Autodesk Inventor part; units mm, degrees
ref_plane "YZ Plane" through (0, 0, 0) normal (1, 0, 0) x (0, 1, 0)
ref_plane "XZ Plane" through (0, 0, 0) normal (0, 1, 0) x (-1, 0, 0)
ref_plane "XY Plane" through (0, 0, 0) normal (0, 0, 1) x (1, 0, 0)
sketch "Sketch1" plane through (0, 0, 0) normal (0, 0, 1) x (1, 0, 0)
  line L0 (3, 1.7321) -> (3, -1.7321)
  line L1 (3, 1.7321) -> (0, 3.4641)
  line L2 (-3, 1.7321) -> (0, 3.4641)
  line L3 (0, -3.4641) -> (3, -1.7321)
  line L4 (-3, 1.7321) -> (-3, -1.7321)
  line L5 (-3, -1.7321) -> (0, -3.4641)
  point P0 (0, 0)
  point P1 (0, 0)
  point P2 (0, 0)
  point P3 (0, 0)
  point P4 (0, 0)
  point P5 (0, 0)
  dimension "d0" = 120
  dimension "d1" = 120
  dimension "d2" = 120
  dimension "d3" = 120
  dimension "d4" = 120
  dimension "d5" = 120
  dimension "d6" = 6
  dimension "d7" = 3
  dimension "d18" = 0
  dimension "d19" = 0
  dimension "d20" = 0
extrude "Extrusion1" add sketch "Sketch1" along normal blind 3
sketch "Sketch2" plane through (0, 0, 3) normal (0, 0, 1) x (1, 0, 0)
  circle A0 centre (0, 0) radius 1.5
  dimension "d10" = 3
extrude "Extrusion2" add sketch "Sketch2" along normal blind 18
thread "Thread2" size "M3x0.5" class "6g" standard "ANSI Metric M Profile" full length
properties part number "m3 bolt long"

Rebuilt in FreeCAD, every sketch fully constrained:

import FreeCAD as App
import Part
import Sketcher

V = App.Vector
Q = App.Units.Quantity

doc = App.newDocument("Part")
body = doc.addObject("PartDesign::Body", "Body")

sketch1 = body.newObject("Sketcher::SketchObject", "Sketch")
sketch1.AttachmentSupport = (doc.getObject("XY_Plane"), [""])
sketch1.MapMode = "FlatFace"
sketch1.addGeometry([
    Part.LineSegment(V(3, -1.7321, 0), V(3, 1.7321, 0)),
    Part.LineSegment(V(3, 1.7321, 0), V(0, 3.4641, 0)),
    Part.LineSegment(V(0, 3.4641, 0), V(-3, 1.7321, 0)),
    Part.LineSegment(V(-3, 1.7321, 0), V(-3, -1.7321, 0)),
    Part.LineSegment(V(-3, -1.7321, 0), V(0, -3.4641, 0)),
    Part.LineSegment(V(0, -3.4641, 0), V(3, -1.7321, 0)),
], False)
sketch1.addConstraint([
    Sketcher.Constraint("Coincident", 0, 2, 1, 1),
    Sketcher.Constraint("Coincident", 1, 2, 2, 1),
    Sketcher.Constraint("Coincident", 2, 2, 3, 1),
    Sketcher.Constraint("Coincident", 3, 2, 4, 1),
    Sketcher.Constraint("Coincident", 4, 2, 5, 1),
    Sketcher.Constraint("Coincident", 5, 2, 0, 1),
    Sketcher.Constraint("Vertical", 0),
    Sketcher.Constraint("Vertical", 3),
    Sketcher.Constraint("Symmetric", 0, 2, 3, 2, -1, 1),
    Sketcher.Constraint("Symmetric", 1, 2, 4, 2, -1, 1),
    Sketcher.Constraint("PointOnObject", 1, 2, -2),
    Sketcher.Constraint("Parallel", 2, 5),
    Sketcher.Constraint("Horizontal", 0, 2, 2, 2),
    Sketcher.Constraint("DistanceX", -1, 1, 0, 2, Q("3 mm")),
    Sketcher.Constraint("Angle", 1, Q("150.0007 deg")),
    Sketcher.Constraint("DistanceY", 0, 1, 0, 2, Q("3.4642 mm")),
])
pad1 = body.newObject("PartDesign::Pad", "Pad")
pad1.Profile = sketch1
pad1.Length = 3

sketch2 = body.newObject("Sketcher::SketchObject", "Sketch001")
sketch2.AttachmentSupport = (doc.getObject("XY_Plane"), [""])
sketch2.MapMode = "FlatFace"
sketch2.AttachmentOffset = App.Placement(V(0, 0, 3), App.Rotation())
sketch2.addGeometry(Part.Circle(V(0, 0, 0), V(0, 0, 1), 1.5), False)
sketch2.addConstraint([
    Sketcher.Constraint("Coincident", 0, 3, -1, 1),
    Sketcher.Constraint("Diameter", 0, Q("3 mm")),
])
pad2 = body.newObject("PartDesign::Pad", "Pad001")
pad2.Profile = sketch2
pad2.Length = 18

doc.recompute()
